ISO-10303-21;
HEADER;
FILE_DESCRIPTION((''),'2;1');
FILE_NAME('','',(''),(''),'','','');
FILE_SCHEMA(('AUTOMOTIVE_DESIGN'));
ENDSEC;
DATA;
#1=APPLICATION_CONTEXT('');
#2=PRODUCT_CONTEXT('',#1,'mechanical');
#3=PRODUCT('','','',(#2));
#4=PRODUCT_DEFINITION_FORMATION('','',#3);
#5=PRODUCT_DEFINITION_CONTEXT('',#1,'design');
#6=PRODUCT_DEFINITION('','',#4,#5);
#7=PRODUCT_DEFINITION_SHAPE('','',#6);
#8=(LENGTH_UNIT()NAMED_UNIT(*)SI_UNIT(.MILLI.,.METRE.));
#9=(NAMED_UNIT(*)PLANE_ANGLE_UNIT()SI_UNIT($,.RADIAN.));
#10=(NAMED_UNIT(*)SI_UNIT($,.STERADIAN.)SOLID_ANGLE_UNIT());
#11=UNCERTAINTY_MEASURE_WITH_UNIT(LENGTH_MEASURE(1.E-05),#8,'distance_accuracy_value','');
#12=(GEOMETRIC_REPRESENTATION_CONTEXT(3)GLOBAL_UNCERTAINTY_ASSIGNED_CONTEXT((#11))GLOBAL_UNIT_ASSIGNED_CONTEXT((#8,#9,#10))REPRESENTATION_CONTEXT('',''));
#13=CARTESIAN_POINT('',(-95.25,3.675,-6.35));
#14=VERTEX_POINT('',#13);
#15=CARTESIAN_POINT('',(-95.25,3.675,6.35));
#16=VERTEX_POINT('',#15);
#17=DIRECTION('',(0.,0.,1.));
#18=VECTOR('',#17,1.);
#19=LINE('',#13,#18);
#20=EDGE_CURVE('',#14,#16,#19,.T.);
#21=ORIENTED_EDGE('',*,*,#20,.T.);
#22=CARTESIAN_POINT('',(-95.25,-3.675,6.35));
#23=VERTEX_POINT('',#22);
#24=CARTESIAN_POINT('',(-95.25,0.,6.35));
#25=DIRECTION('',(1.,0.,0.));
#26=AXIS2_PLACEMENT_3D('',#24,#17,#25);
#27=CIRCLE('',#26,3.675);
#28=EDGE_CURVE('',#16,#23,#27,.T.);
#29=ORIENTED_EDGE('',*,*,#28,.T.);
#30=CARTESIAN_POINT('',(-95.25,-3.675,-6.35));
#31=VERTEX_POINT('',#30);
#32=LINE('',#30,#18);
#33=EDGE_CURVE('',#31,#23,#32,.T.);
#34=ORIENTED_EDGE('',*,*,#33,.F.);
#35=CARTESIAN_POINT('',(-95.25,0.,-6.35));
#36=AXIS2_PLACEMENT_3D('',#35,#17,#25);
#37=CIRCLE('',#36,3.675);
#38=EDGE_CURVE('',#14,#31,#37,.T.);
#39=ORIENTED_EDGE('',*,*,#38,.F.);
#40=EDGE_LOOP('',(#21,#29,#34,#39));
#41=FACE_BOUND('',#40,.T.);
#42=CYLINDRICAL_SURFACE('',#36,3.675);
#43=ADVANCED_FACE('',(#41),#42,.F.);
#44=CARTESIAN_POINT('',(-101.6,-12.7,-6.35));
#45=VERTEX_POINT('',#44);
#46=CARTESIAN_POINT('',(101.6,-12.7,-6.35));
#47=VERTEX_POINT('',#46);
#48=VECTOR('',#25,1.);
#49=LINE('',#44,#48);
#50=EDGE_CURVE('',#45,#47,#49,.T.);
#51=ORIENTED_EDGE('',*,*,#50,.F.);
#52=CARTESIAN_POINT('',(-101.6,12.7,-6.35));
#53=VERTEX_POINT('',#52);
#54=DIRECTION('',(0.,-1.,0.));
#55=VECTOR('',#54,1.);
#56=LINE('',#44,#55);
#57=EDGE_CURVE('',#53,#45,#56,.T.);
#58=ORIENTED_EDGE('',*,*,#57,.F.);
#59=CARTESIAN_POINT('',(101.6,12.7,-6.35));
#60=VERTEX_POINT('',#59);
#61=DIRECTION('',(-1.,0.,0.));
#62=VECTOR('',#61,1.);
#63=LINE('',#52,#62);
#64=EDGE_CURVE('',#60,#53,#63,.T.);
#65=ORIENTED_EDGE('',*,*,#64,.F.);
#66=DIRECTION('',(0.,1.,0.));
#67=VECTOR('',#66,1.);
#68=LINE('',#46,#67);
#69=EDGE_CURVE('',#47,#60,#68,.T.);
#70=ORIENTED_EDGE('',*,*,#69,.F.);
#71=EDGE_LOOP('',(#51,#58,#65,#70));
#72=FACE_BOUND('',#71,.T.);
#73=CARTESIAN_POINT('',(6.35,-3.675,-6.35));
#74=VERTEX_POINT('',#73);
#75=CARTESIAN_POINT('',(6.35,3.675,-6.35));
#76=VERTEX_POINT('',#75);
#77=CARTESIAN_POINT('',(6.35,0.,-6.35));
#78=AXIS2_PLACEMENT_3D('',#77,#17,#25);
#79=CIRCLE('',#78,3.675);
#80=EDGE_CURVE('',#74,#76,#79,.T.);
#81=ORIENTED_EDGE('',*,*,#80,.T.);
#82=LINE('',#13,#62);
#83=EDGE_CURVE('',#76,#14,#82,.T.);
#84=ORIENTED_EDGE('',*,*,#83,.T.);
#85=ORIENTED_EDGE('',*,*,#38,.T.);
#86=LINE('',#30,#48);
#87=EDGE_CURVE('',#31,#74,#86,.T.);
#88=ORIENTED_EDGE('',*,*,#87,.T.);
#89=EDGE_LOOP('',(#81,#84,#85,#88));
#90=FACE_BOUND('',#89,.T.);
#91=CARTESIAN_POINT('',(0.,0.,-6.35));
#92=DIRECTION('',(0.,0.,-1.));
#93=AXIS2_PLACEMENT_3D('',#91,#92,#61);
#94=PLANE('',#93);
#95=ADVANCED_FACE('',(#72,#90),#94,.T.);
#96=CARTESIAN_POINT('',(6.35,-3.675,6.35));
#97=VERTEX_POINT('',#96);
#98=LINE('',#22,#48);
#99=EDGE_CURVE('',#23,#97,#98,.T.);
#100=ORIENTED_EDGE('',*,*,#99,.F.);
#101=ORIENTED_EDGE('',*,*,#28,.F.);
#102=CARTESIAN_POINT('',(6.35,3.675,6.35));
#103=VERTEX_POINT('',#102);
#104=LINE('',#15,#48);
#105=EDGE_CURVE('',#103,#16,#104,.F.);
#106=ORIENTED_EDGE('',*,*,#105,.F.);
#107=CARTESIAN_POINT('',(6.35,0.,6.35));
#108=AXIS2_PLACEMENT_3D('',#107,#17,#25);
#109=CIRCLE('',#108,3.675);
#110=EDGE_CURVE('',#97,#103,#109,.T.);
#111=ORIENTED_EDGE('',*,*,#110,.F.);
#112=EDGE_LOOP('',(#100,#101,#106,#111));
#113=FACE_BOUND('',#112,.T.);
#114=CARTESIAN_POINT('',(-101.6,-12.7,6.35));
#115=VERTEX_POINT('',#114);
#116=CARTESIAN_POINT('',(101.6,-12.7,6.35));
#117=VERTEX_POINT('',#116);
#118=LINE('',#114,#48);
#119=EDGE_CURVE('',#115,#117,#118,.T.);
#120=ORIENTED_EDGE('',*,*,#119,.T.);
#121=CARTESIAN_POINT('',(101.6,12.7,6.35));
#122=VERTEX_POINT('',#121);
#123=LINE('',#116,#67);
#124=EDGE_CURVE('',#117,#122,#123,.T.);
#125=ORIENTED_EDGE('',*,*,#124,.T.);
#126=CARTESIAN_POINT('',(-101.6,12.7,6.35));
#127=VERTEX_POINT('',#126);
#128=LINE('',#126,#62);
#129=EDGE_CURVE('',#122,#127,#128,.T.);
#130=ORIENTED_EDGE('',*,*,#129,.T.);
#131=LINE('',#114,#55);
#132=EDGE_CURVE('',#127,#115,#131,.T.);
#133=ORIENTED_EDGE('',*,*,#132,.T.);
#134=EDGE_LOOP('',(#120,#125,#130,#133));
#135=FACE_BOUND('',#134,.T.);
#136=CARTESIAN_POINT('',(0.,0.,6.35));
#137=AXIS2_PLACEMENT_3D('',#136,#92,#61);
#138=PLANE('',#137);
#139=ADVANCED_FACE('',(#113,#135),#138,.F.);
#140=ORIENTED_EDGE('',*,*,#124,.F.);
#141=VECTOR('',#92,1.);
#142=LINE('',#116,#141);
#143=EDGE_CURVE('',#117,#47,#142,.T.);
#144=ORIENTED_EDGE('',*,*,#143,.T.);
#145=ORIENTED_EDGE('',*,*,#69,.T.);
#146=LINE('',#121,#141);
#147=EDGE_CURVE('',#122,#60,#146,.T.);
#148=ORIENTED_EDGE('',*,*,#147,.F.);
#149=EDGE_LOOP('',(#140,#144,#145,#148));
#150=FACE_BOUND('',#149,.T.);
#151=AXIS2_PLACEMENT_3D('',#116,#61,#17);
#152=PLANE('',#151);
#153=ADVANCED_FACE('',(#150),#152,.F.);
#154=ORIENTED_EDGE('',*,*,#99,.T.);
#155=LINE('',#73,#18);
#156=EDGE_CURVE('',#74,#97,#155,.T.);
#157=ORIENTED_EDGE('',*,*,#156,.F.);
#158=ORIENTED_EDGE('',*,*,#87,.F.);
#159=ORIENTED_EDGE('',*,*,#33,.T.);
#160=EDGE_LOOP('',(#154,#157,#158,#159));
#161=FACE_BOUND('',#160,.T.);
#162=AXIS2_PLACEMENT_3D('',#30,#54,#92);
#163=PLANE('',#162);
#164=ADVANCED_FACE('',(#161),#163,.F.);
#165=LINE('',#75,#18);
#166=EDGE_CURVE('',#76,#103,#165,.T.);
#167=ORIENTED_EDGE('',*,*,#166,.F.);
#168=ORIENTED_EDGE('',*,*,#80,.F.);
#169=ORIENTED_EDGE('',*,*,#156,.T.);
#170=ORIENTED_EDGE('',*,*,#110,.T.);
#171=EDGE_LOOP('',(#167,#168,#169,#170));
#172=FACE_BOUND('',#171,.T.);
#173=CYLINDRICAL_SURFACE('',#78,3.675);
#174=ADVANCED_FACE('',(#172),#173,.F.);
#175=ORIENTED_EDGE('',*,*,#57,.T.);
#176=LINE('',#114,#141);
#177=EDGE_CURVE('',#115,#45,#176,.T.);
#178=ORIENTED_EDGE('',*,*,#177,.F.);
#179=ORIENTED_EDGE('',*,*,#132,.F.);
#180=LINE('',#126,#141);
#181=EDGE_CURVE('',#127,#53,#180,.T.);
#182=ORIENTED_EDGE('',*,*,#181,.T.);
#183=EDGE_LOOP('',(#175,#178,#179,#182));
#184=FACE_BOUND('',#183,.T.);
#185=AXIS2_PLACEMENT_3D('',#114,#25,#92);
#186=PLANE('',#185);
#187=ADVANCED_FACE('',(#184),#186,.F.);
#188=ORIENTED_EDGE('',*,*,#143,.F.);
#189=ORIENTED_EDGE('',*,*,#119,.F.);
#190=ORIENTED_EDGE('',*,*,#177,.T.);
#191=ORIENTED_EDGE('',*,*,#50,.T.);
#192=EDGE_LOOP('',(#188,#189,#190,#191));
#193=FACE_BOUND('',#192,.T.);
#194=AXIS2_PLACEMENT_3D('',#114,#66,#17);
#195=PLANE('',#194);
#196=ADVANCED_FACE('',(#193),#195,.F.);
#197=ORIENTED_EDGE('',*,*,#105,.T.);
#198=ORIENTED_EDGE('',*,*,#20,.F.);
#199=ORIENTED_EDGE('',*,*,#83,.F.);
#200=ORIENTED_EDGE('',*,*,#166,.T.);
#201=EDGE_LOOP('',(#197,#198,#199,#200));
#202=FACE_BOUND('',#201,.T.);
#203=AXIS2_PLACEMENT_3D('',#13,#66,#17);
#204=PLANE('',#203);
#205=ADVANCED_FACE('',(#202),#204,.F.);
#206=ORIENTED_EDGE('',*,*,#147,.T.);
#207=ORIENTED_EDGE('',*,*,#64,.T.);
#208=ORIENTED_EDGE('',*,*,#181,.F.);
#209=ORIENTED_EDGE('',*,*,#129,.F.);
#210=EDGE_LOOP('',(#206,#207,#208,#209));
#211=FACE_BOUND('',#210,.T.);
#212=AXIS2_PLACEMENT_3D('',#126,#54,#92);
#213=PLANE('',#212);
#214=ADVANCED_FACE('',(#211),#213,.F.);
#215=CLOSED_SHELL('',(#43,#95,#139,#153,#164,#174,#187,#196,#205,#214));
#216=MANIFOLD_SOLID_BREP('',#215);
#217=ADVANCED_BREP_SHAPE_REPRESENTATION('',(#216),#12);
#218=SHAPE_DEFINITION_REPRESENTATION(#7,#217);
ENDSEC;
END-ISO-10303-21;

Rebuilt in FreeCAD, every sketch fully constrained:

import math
import FreeCAD as App
import Part
import Sketcher
Q = App.Units.Quantity

doc = App.newDocument("Part")
body = doc.addObject("PartDesign::Body", "Body")

sketch1 = doc.addObject("Sketcher::SketchObject", "Sketch")
body.addObject(sketch1)
sketch1.AttachmentSupport = (doc.XY_Plane, [""])
sketch1.MapMode = "FlatFace"
sketch1.addGeometry(Part.LineSegment(App.Vector(-102, 13, 0), App.Vector(-102, -13, 0)), False)
sketch1.addGeometry(Part.LineSegment(App.Vector(-102, -13, 0), App.Vector(102, -13, 0)), False)
sketch1.addGeometry(Part.LineSegment(App.Vector(102, -13, 0), App.Vector(102, 13, 0)), False)
sketch1.addGeometry(Part.LineSegment(App.Vector(102, 13, 0), App.Vector(-102, 13, 0)), False)
sketch1.addConstraint(Sketcher.Constraint("Coincident", 0, 2, 1, 1))
sketch1.addConstraint(Sketcher.Constraint("Coincident", 1, 2, 2, 1))
sketch1.addConstraint(Sketcher.Constraint("Coincident", 2, 2, 3, 1))
sketch1.addConstraint(Sketcher.Constraint("Coincident", 3, 2, 0, 1))
sketch1.addConstraint(Sketcher.Constraint("Vertical", 0))
sketch1.addConstraint(Sketcher.Constraint("Horizontal", 1))
sketch1.addConstraint(Sketcher.Constraint("Vertical", 2))
sketch1.addConstraint(Sketcher.Constraint("Horizontal", 3))
sketch1.addConstraint(Sketcher.Constraint("Symmetric", 0, 2, 2, 2, -1, 1))
sketch1.addConstraint(Sketcher.Constraint("DistanceX", 1, 1, 1, 2, Q("8 in")))
sketch1.addConstraint(Sketcher.Constraint("DistanceY", 0, 2, 0, 1, Q("1 in")))
pad1 = doc.addObject("PartDesign::Pad", "Pad")
body.addObject(pad1)
pad1.Profile = sketch1
pad1.Length = Q("0.5 in")
pad1.Midplane = True

sketch2 = doc.addObject("Sketcher::SketchObject", "Sketch001")
body.addObject(sketch2)
sketch2.AttachmentSupport = (doc.XY_Plane, [""])
sketch2.MapMode = "FlatFace"
sketch2.AttachmentOffset = App.Placement(App.Vector(0, 0, 0.25 * 25.4), App.Rotation())
sketch2.addGeometry(Part.LineSegment(App.Vector(6.3, 3.7, 0), App.Vector(-95.2, 3.7, 0)), False)
sketch2.addGeometry(Part.ArcOfCircle(Part.Circle(App.Vector(-95.2, 0, 0), App.Vector(0, 0, 1), 3.7), math.radians(90), math.radians(270)), False)
sketch2.addGeometry(Part.LineSegment(App.Vector(-95.2, -3.7, 0), App.Vector(6.3, -3.7, 0)), False)
sketch2.addGeometry(Part.ArcOfCircle(Part.Circle(App.Vector(6.3, 0, 0), App.Vector(0, 0, 1), 3.7), math.radians(-90), math.radians(90)), False)
sketch2.addConstraint(Sketcher.Constraint("Tangent", 0, 2, 1, 1))
sketch2.addConstraint(Sketcher.Constraint("Tangent", 1, 2, 2, 1))
sketch2.addConstraint(Sketcher.Constraint("Tangent", 2, 2, 3, 1))
sketch2.addConstraint(Sketcher.Constraint("Tangent", 3, 2, 0, 1))
sketch2.addConstraint(Sketcher.Constraint("Horizontal", 0))
sketch2.addConstraint(Sketcher.Constraint("Horizontal", 2))
sketch2.addConstraint(Sketcher.Constraint("PointOnObject", 1, 3, -1))
sketch2.addConstraint(Sketcher.Constraint("DistanceX", 0, 2, 0, 1, Q("4 in")))
sketch2.addConstraint(Sketcher.Constraint("DistanceX", 1, 3, -1, 1, Q("3.75 in")))
sketch2.addConstraint(Sketcher.Constraint("Radius", 1, 3.675))
pocket1 = doc.addObject("PartDesign::Pocket", "Pocket")
body.addObject(pocket1)
pocket1.Profile = sketch2
pocket1.Type = "ThroughAll"
pocket1.Midplane = True

doc.recompute()
